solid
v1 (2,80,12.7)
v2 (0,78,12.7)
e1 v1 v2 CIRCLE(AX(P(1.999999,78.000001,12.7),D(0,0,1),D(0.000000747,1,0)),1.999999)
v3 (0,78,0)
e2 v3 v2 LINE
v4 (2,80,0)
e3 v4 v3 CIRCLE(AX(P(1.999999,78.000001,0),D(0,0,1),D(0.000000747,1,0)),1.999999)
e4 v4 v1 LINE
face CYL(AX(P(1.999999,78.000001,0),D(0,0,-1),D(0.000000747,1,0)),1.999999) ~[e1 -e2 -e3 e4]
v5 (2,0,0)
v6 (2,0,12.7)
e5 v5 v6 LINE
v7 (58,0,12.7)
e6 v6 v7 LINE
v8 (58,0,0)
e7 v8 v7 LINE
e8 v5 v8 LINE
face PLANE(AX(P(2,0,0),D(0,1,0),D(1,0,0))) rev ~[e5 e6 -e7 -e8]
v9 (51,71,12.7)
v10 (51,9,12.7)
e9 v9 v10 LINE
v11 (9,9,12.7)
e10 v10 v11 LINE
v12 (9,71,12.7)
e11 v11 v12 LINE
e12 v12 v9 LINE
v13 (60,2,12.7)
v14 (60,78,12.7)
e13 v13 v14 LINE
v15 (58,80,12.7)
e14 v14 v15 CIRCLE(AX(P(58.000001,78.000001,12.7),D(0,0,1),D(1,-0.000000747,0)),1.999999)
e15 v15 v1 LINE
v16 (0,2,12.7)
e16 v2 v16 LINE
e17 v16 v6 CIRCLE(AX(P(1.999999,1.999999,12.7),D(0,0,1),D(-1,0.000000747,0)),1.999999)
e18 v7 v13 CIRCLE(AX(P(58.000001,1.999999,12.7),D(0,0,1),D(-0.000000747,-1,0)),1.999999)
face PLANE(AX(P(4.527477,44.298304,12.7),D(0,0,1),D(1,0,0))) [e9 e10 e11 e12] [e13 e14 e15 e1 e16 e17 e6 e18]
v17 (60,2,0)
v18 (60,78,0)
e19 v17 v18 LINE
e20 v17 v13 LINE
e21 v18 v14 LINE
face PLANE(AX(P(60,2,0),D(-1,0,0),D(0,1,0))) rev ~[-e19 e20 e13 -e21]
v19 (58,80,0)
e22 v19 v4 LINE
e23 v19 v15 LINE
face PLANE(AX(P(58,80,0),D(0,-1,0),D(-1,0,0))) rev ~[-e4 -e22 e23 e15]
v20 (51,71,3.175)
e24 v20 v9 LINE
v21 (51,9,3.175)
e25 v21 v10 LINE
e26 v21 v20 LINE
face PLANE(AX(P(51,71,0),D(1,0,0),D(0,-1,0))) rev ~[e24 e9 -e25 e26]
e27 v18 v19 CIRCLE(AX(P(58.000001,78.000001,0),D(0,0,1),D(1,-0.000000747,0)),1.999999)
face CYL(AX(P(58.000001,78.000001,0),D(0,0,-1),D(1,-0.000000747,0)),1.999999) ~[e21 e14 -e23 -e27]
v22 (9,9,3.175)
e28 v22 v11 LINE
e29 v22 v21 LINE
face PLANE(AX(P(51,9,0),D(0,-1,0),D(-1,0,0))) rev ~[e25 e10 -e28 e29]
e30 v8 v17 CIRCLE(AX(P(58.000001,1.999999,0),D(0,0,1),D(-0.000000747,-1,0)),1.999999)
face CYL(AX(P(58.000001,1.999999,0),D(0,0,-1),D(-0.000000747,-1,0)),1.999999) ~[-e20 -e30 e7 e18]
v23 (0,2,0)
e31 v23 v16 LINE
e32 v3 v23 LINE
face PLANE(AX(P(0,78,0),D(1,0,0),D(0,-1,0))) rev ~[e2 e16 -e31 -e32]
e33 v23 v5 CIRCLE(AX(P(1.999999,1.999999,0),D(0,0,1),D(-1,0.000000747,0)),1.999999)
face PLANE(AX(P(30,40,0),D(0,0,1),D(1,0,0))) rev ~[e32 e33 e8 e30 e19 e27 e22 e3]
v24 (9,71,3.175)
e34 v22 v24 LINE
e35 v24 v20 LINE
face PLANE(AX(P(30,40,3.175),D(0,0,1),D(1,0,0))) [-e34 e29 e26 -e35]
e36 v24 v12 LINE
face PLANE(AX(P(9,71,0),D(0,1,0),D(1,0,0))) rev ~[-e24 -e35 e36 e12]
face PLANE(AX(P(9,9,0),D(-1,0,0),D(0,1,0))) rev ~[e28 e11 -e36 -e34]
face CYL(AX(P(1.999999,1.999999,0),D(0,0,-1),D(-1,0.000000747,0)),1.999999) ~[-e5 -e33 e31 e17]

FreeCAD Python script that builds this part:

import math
import FreeCAD as App
import Part
import Sketcher

V = App.Vector
Q = App.Units.Quantity

doc = App.newDocument("Part")
params = doc.addObject("Spreadsheet::Sheet", "Params")
for row, (alias, value) in enumerate([
    ("sketch1_radius", "1.999999 mm"),
    ("sketch1_width", "56 mm"),
    ("sketch1_width2", "42 mm"),
    ("sketch1_height", "76 mm"),
    ("sketch1_height2", "62 mm"),
    ("pad1_length", "12.7 mm"),
    ("sketch2_width", "42 mm"),
    ("sketch2_height", "62 mm"),
    ("pad2_length", "3.175 mm"),
], start=1):
    params.set(f"A{row}", alias)
    params.set(f"B{row}", "=" + value)
    params.setAlias(f"B{row}", alias)

body = doc.addObject("PartDesign::Body", "Body")

# Sketch on XY plane
sketch1 = doc.addObject("Sketcher::SketchObject", "Sketch")
body.addObject(sketch1)
sketch1.AttachmentSupport = (doc.XY_Plane, [""])
sketch1.MapMode = "FlatFace"
sketch1.addGeometry([
    Part.LineSegment(V(0, 78, 0), V(0, 2, 0)),  # 0
    Part.ArcOfCircle(Part.Circle(V(1.999999, 1.999999, 0), V(0, 0, 1), 1.999999), math.radians(179.999957), math.radians(270.000043)),  # 1
    Part.LineSegment(V(2, 0, 0), V(58, 0, 0)),  # 2
    Part.ArcOfCircle(Part.Circle(V(58.000001, 1.999999, 0), V(0, 0, 1), 1.999999), math.radians(-90.000043), math.radians(0.000043)),  # 3
    Part.LineSegment(V(60, 2, 0), V(60, 78, 0)),  # 4
    Part.ArcOfCircle(Part.Circle(V(58.000001, 78.000001, 0), V(0, 0, 1), 1.999999), math.radians(-0.000043), math.radians(90.000043)),  # 5
    Part.LineSegment(V(58, 80, 0), V(2, 80, 0)),  # 6
    Part.ArcOfCircle(Part.Circle(V(1.999999, 78.000001, 0), V(0, 0, 1), 1.999999), math.radians(89.999957), math.radians(180.000043)),  # 7
    Part.LineSegment(V(9, 9, 0), V(9, 71, 0)),  # 8
    Part.LineSegment(V(9, 71, 0), V(51, 71, 0)),  # 9
    Part.LineSegment(V(51, 71, 0), V(51, 9, 0)),  # 10
    Part.LineSegment(V(51, 9, 0), V(9, 9, 0)),  # 11
], False)
sketch1.addConstraint([
    Sketcher.Constraint("Tangent", 0, 2, 1, 1),
    Sketcher.Constraint("Tangent", 1, 2, 2, 1),
    Sketcher.Constraint("Tangent", 2, 2, 3, 1),
    Sketcher.Constraint("Tangent", 3, 2, 4, 1),
    Sketcher.Constraint("Tangent", 4, 2, 5, 1),
    Sketcher.Constraint("Tangent", 5, 2, 6, 1),
    Sketcher.Constraint("Tangent", 6, 2, 7, 1),
    Sketcher.Constraint("Tangent", 7, 2, 0, 1),
    Sketcher.Constraint("Coincident", 8, 2, 9, 1),
    Sketcher.Constraint("Coincident", 9, 2, 10, 1),
    Sketcher.Constraint("Coincident", 10, 2, 11, 1),
    Sketcher.Constraint("Coincident", 11, 2, 8, 1),
    Sketcher.Constraint("Vertical", 0),
    Sketcher.Constraint("Horizontal", 2),
    Sketcher.Constraint("Vertical", 4),
    Sketcher.Constraint("Horizontal", 6),
    Sketcher.Constraint("Vertical", 8),
    Sketcher.Constraint("Horizontal", 9),
    Sketcher.Constraint("Vertical", 10),
    Sketcher.Constraint("Horizontal", 11),
    Sketcher.Constraint("Equal", 1, 3),
    Sketcher.Constraint("Equal", 3, 5),
    Sketcher.Constraint("Equal", 5, 7),
    Sketcher.Constraint("PointOnObject", 0, 2, -2),
    Sketcher.Constraint("PointOnObject", 1, 2, -1),
    Sketcher.Constraint("Radius", 1, Q("1.999999 mm")),
    Sketcher.Constraint("DistanceX", 2, 1, 2, 2, Q("56 mm")),
    Sketcher.Constraint("DistanceX", 9, 1, 9, 2, Q("42 mm")),
    Sketcher.Constraint("DistanceY", 0, 2, 0, 1, Q("76 mm")),
    Sketcher.Constraint("DistanceY", 8, 1, 8, 2, Q("62 mm")),
    Sketcher.Constraint("DistanceX", -1, 1, 8, 2, Q("9 mm")),
    Sketcher.Constraint("DistanceY", -1, 1, 8, 2, Q("71 mm")),
])
sketch1.setExpression("Constraints[25]", "Params.sketch1_radius")
sketch1.setExpression("Constraints[26]", "Params.sketch1_width")
sketch1.setExpression("Constraints[27]", "Params.sketch1_width2")
sketch1.setExpression("Constraints[28]", "Params.sketch1_height")
sketch1.setExpression("Constraints[29]", "Params.sketch1_height2")
pad1 = doc.addObject("PartDesign::Pad", "Pad")
body.addObject(pad1)
pad1.Profile = sketch1
pad1.setExpression("Length", "Params.pad1_length")

# Sketch on XY plane
sketch2 = doc.addObject("Sketcher::SketchObject", "Sketch001")
body.addObject(sketch2)
sketch2.AttachmentSupport = (doc.XY_Plane, [""])
sketch2.MapMode = "FlatFace"
sketch2.addGeometry([
    Part.LineSegment(V(9, 71, 0), V(9, 9, 0)),
    Part.LineSegment(V(9, 9, 0), V(51, 9, 0)),
    Part.LineSegment(V(51, 9, 0), V(51, 71, 0)),
    Part.LineSegment(V(51, 71, 0), V(9, 71, 0)),
], False)
sketch2.addConstraint([
    Sketcher.Constraint("Coincident", 0, 2, 1, 1),
    Sketcher.Constraint("Coincident", 1, 2, 2, 1),
    Sketcher.Constraint("Coincident", 2, 2, 3, 1),
    Sketcher.Constraint("Coincident", 3, 2, 0, 1),
    Sketcher.Constraint("Vertical", 0),
    Sketcher.Constraint("Horizontal", 1),
    Sketcher.Constraint("Vertical", 2),
    Sketcher.Constraint("Horizontal", 3),
    Sketcher.Constraint("DistanceX", 1, 1, 1, 2, Q("42 mm")),
    Sketcher.Constraint("DistanceY", 0, 2, 0, 1, Q("62 mm")),
    Sketcher.Constraint("DistanceX", -1, 1, 0, 2, Q("9 mm")),
    Sketcher.Constraint("DistanceY", -1, 1, 0, 2, Q("9 mm")),
])
sketch2.setExpression("Constraints[8]", "Params.sketch2_width")
sketch2.setExpression("Constraints[9]", "Params.sketch2_height")
pad2 = doc.addObject("PartDesign::Pad", "Pad001")
body.addObject(pad2)
pad2.Profile = sketch2
pad2.setExpression("Length", "Params.pad2_length")

doc.recompute()
